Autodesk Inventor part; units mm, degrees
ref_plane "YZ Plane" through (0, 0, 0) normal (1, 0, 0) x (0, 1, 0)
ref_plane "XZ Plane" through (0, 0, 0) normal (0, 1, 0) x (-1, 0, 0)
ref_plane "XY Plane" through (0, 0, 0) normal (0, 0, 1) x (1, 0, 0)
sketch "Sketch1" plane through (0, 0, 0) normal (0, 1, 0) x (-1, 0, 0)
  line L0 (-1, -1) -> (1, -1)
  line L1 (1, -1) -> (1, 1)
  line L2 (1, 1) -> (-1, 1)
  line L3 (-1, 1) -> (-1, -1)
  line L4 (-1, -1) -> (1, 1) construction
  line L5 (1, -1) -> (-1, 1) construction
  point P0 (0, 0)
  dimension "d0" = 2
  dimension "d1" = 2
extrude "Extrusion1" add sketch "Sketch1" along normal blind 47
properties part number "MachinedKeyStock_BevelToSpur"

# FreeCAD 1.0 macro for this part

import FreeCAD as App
import Part
import Sketcher

V = App.Vector

doc = App.newDocument("Part")
body = doc.addObject("PartDesign::Body", "Body")

sketch1 = doc.addObject("Sketcher::SketchObject", "Sketch")
body.addObject(sketch1)
sketch1.AttachmentSupport = (doc.XZ_Plane, [""])
sketch1.MapMode = "FlatFace"
sketch1.addGeometry([
    Part.LineSegment(V(1, 1, 0), V(1, -1, 0)),
    Part.LineSegment(V(1, -1, 0), V(-1, -1, 0)),
    Part.LineSegment(V(-1, -1, 0), V(-1, 1, 0)),
    Part.LineSegment(V(-1, 1, 0), V(1, 1, 0)),
], False)
sketch1.addConstraint([
    Sketcher.Constraint("Coincident", 0, 2, 1, 1),
    Sketcher.Constraint("Coincident", 1, 2, 2, 1),
    Sketcher.Constraint("Coincident", 2, 2, 3, 1),
    Sketcher.Constraint("Coincident", 3, 2, 0, 1),
    Sketcher.Constraint("Vertical", 0),
    Sketcher.Constraint("Horizontal", 1),
    Sketcher.Constraint("Vertical", 2),
    Sketcher.Constraint("Horizontal", 3),
    Sketcher.Constraint("Symmetric", 0, 2, 2, 2, -1, 1),
    Sketcher.Constraint("Equal", 3, 0),
    Sketcher.Constraint("DistanceX", 1, 2, 1, 1, 2.0),
])
pad1 = doc.addObject("PartDesign::Pad", "Pad")
body.addObject(pad1)
pad1.Profile = sketch1
pad1.Length = 47
pad1.Reversed = True

doc.recompute()
